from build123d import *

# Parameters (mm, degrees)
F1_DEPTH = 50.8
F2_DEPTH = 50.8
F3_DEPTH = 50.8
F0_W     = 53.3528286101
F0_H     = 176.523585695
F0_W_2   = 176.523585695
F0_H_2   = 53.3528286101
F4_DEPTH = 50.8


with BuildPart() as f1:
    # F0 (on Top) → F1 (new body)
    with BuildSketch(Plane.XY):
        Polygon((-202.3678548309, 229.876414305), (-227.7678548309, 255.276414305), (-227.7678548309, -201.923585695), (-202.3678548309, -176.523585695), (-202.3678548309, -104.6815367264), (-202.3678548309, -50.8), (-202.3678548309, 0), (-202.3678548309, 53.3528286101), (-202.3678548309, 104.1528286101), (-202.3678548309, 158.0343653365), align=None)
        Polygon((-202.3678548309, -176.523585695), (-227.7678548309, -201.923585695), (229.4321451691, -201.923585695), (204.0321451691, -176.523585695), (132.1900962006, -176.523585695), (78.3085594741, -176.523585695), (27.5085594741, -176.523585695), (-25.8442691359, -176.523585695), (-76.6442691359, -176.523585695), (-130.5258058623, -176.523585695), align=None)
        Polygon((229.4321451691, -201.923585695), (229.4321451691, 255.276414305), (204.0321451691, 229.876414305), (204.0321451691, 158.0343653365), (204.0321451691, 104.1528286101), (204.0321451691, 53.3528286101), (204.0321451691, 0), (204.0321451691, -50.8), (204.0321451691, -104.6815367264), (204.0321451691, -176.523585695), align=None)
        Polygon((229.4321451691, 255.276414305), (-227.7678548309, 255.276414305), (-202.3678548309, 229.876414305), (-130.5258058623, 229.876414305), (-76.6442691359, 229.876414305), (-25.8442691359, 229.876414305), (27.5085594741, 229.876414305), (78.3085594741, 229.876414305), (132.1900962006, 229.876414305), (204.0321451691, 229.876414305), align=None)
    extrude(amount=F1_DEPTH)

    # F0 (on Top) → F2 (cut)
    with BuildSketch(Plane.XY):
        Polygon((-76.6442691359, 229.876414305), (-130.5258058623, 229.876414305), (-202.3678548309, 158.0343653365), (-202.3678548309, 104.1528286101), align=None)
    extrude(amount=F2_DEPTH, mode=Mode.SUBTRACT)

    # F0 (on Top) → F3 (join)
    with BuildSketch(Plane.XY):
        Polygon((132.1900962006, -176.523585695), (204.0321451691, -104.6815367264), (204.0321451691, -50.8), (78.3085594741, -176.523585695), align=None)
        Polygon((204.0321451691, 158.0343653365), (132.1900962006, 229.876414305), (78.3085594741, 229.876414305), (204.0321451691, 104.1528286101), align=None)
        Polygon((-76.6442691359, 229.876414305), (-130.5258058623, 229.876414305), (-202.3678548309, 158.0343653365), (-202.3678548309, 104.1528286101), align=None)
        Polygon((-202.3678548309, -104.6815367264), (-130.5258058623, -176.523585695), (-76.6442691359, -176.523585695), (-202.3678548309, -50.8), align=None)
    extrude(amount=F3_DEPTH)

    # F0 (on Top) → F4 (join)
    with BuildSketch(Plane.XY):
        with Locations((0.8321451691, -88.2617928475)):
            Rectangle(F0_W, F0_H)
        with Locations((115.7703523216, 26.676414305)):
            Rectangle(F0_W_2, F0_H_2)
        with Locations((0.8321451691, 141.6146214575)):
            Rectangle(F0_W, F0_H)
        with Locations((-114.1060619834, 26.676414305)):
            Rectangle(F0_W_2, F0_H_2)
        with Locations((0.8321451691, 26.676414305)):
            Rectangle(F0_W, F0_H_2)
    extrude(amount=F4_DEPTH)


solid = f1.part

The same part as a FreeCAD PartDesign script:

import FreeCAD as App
import Part
import Sketcher

V = App.Vector
Q = App.Units.Quantity


def add_polygon(sketch, points):
    """Adds a closed chain of lines whose ends are joined by coincident constraints."""
    first, n = sketch.GeometryCount, len(points)
    for a, b in zip(points, points[1:] + points[:1]):
        sketch.addGeometry(Part.LineSegment(App.Vector(*a, 0), App.Vector(*b, 0)), False)
    for i in range(n):
        sketch.addConstraint(Sketcher.Constraint("Coincident", first + i, 2, first + (i + 1) % n, 1))

doc = App.newDocument("Part")
body = doc.addObject("PartDesign::Body", "Body")

# Sketch on XY plane
sketch1 = body.newObject("Sketcher::SketchObject", "Sketch")
sketch1.AttachmentSupport = (doc.getObject("XY_Plane"), [""])
sketch1.MapMode = "FlatFace"
add_polygon(sketch1, [(-228, 255), (-228, -202), (229, -202), (229, 255)])  # lines 0-3
add_polygon(sketch1, [(204, 230), (204, -177), (-202, -177), (-202, 230)])  # lines 4-7
sketch1.addConstraint(Sketcher.Constraint("Vertical", 0))
sketch1.addConstraint(Sketcher.Constraint("Horizontal", 1))
sketch1.addConstraint(Sketcher.Constraint("Vertical", 2))
sketch1.addConstraint(Sketcher.Constraint("Horizontal", 3))
sketch1.addConstraint(Sketcher.Constraint("Vertical", 4))
sketch1.addConstraint(Sketcher.Constraint("Horizontal", 5))
sketch1.addConstraint(Sketcher.Constraint("Vertical", 6))
sketch1.addConstraint(Sketcher.Constraint("Horizontal", 7))
sketch1.addConstraint(Sketcher.Constraint("Equal", 3, 0))
sketch1.addConstraint(Sketcher.Constraint("Equal", 7, 4))
sketch1.addConstraint(Sketcher.Constraint("DistanceX", 1, 1, 1, 2, Q("18 in")))
sketch1.addConstraint(Sketcher.Constraint("DistanceX", 5, 2, 5, 1, Q("16 in")))
sketch1.addConstraint(Sketcher.Constraint("DistanceX", 4, 2, 1, 2, Q("1 in")))
sketch1.addConstraint(Sketcher.Constraint("DistanceY", 1, 2, 4, 2, Q("1 in")))
sketch1.addConstraint(Sketcher.Constraint("DistanceX", 0, 2, -1, 1, Q("227.767855 mm")))
sketch1.addConstraint(Sketcher.Constraint("DistanceY", 0, 2, -1, 1, Q("201.923586 mm")))
pad1 = body.newObject("PartDesign::Pad", "Pad")
pad1.Profile = sketch1
pad1.Length = Q("2 in")

# Sketch on XY plane
sketch2 = body.newObject("Sketcher::SketchObject", "Sketch001")
sketch2.AttachmentSupport = (doc.getObject("XY_Plane"), [""])
sketch2.MapMode = "FlatFace"
add_polygon(sketch2, [(-77, 230), (-131, 230), (-202, 158), (-202, 104)])  # lines 0-3
sketch2.addConstraint(Sketcher.Constraint("Horizontal", 0))
sketch2.addConstraint(Sketcher.Constraint("Vertical", 2))
sketch2.addConstraint(Sketcher.Constraint("Parallel", 1, 3))
sketch2.addConstraint(Sketcher.Constraint("Equal", 0, 2))
sketch2.addConstraint(Sketcher.Constraint("Distance", 1, Q("4 in")))
sketch2.addConstraint(Sketcher.Constraint("Distance", 3, Q("7 in")))
sketch2.addConstraint(Sketcher.Constraint("DistanceY", -1, 1, 2, 2, Q("104.152829 mm")))
sketch2.addConstraint(Sketcher.Constraint("DistanceX", 3, 2, -1, 1, Q("76.644269 mm")))
pocket1 = body.newObject("PartDesign::Pocket", "Pocket")
pocket1.Profile = sketch2
pocket1.Length = Q("2 in")
pocket1.Reversed = True

# Sketch on XY plane
sketch3 = body.newObject("Sketcher::SketchObject", "Sketch002")
sketch3.AttachmentSupport = (doc.getObject("XY_Plane"), [""])
sketch3.MapMode = "FlatFace"
add_polygon(sketch3, [(132, -177), (204, -105), (204, -51), (78, -177)])  # lines 0-3
add_polygon(sketch3, [(204, 158), (132, 230), (78, 230), (204, 104)])  # lines 4-7
add_polygon(sketch3, [(-77, 230), (-131, 230), (-202, 158), (-202, 104)])  # lines 8-11
add_polygon(sketch3, [(-202, -105), (-131, -177), (-77, -177), (-202, -51)])  # lines 12-15
sketch3.addConstraint(Sketcher.Constraint("Vertical", 1))
sketch3.addConstraint(Sketcher.Constraint("Horizontal", 3))
sketch3.addConstraint(Sketcher.Constraint("Horizontal", 5))
sketch3.addConstraint(Sketcher.Constraint("Vertical", 7))
sketch3.addConstraint(Sketcher.Constraint("Horizontal", 8))
sketch3.addConstraint(Sketcher.Constraint("Vertical", 10))
sketch3.addConstraint(Sketcher.Constraint("Horizontal", 13))
sketch3.addConstraint(Sketcher.Constraint("Vertical", 15))
sketch3.addConstraint(Sketcher.Constraint("Parallel", 0, 2))
sketch3.addConstraint(Sketcher.Constraint("Perpendicular", 2, 4))
sketch3.addConstraint(Sketcher.Constraint("Parallel", 4, 6))
sketch3.addConstraint(Sketcher.Constraint("Perpendicular", 6, 9))
sketch3.addConstraint(Sketcher.Constraint("Parallel", 9, 11))
sketch3.addConstraint(Sketcher.Constraint("Perpendicular", 11, 12))
sketch3.addConstraint(Sketcher.Constraint("Parallel", 12, 14))
sketch3.addConstraint(Sketcher.Constraint("Horizontal", 5, 2, 8, 2))
sketch3.addConstraint(Sketcher.Constraint("Horizontal", 7, 2, 9, 2))
sketch3.addConstraint(Sketcher.Constraint("Horizontal", 6, 2, 10, 2))
sketch3.addConstraint(Sketcher.Constraint("Horizontal", 3, 2, 12, 2))
sketch3.addConstraint(Sketcher.Constraint("Horizontal", 1, 2, 14, 2))
sketch3.addConstraint(Sketcher.Constraint("Horizontal", 0, 2, 15, 2))
sketch3.addConstraint(Sketcher.Constraint("Vertical", 3, 2, 4, 2))
sketch3.addConstraint(Sketcher.Constraint("Vertical", 2, 2, 5, 2))
sketch3.addConstraint(Sketcher.Constraint("Vertical", 1, 2, 6, 2))
sketch3.addConstraint(Sketcher.Constraint("Vertical", 8, 2, 12, 2))
sketch3.addConstraint(Sketcher.Constraint("Vertical", 11, 2, 13, 2))
sketch3.addConstraint(Sketcher.Constraint("Distance", 0, Q("4 in")))
sketch3.addConstraint(Sketcher.Constraint("Distance", 2, Q("7 in")))
sketch3.addConstraint(Sketcher.Constraint("DistanceY", 1, 2, -1, 1, Q("2 in")))
sketch3.addConstraint(Sketcher.Constraint("DistanceY", 3, 2, 4, 2, Q("16 in")))
sketch3.addConstraint(Sketcher.Constraint("DistanceX", 9, 2, 7, 2, Q("16 in")))
sketch3.addConstraint(Sketcher.Constraint("DistanceX", -1, 1, 2, 2, Q("78.308559 mm")))
pad2 = body.newObject("PartDesign::Pad", "Pad001")
pad2.Profile = sketch3
pad2.Length = Q("2 in")

# Sketch on XY plane
sketch4 = body.newObject("Sketcher::SketchObject", "Sketch003")
sketch4.AttachmentSupport = (doc.getObject("XY_Plane"), [""])
sketch4.MapMode = "FlatFace"
add_polygon(sketch4, [(-26, 0), (-26, -177), (28, -177), (28, 0), (204, 0), (204, 53), (28, 53), (28, 230), (-26, 230), (-26, 53), (-202, 53), (-202, 0)])  # lines 0-11
sketch4.addConstraint(Sketcher.Constraint("Vertical", 0))
sketch4.addConstraint(Sketcher.Constraint("Horizontal", 1))
sketch4.addConstraint(Sketcher.Constraint("Vertical", 2))
sketch4.addConstraint(Sketcher.Constraint("Horizontal", 3))
sketch4.addConstraint(Sketcher.Constraint("Vertical", 4))
sketch4.addConstraint(Sketcher.Constraint("Horizontal", 5))
sketch4.addConstraint(Sketcher.Constraint("Vertical", 6))
sketch4.addConstraint(Sketcher.Constraint("Horizontal", 7))
sketch4.addConstraint(Sketcher.Constraint("Vertical", 8))
sketch4.addConstraint(Sketcher.Constraint("Horizontal", 9))
sketch4.addConstraint(Sketcher.Constraint("Vertical", 10))
sketch4.addConstraint(Sketcher.Constraint("Horizontal", 11))
sketch4.addConstraint(Sketcher.Constraint("PointOnObject", 2, 2, -1))
sketch4.addConstraint(Sketcher.Constraint("PointOnObject", 10, 2, -1))
sketch4.addConstraint(Sketcher.Constraint("Horizontal", 5, 2, 8, 2))
sketch4.addConstraint(Sketcher.Constraint("Vertical", 2, 2, 5, 2))
sketch4.addConstraint(Sketcher.Constraint("Vertical", 0, 2, 7, 2))
sketch4.addConstraint(Sketcher.Constraint("Equal", 5, 9))
sketch4.addConstraint(Sketcher.Constraint("Equal", 11, 0))
sketch4.addConstraint(Sketcher.Constraint("Equal", 7, 4))
sketch4.addConstraint(Sketcher.Constraint("Equal", 2, 6))
sketch4.addConstraint(Sketcher.Constraint("DistanceY", 1, 2, 6, 2, Q("16 in")))
sketch4.addConstraint(Sketcher.Constraint("DistanceX", 1, 1, 1, 2, Q("53.352829 mm")))
sketch4.addConstraint(Sketcher.Constraint("DistanceX", 0, 2, -1, 1, Q("25.844269 mm")))
pad3 = body.newObject("PartDesign::Pad", "Pad002")
pad3.Profile = sketch4
pad3.Length = Q("2 in")

doc.recompute()
